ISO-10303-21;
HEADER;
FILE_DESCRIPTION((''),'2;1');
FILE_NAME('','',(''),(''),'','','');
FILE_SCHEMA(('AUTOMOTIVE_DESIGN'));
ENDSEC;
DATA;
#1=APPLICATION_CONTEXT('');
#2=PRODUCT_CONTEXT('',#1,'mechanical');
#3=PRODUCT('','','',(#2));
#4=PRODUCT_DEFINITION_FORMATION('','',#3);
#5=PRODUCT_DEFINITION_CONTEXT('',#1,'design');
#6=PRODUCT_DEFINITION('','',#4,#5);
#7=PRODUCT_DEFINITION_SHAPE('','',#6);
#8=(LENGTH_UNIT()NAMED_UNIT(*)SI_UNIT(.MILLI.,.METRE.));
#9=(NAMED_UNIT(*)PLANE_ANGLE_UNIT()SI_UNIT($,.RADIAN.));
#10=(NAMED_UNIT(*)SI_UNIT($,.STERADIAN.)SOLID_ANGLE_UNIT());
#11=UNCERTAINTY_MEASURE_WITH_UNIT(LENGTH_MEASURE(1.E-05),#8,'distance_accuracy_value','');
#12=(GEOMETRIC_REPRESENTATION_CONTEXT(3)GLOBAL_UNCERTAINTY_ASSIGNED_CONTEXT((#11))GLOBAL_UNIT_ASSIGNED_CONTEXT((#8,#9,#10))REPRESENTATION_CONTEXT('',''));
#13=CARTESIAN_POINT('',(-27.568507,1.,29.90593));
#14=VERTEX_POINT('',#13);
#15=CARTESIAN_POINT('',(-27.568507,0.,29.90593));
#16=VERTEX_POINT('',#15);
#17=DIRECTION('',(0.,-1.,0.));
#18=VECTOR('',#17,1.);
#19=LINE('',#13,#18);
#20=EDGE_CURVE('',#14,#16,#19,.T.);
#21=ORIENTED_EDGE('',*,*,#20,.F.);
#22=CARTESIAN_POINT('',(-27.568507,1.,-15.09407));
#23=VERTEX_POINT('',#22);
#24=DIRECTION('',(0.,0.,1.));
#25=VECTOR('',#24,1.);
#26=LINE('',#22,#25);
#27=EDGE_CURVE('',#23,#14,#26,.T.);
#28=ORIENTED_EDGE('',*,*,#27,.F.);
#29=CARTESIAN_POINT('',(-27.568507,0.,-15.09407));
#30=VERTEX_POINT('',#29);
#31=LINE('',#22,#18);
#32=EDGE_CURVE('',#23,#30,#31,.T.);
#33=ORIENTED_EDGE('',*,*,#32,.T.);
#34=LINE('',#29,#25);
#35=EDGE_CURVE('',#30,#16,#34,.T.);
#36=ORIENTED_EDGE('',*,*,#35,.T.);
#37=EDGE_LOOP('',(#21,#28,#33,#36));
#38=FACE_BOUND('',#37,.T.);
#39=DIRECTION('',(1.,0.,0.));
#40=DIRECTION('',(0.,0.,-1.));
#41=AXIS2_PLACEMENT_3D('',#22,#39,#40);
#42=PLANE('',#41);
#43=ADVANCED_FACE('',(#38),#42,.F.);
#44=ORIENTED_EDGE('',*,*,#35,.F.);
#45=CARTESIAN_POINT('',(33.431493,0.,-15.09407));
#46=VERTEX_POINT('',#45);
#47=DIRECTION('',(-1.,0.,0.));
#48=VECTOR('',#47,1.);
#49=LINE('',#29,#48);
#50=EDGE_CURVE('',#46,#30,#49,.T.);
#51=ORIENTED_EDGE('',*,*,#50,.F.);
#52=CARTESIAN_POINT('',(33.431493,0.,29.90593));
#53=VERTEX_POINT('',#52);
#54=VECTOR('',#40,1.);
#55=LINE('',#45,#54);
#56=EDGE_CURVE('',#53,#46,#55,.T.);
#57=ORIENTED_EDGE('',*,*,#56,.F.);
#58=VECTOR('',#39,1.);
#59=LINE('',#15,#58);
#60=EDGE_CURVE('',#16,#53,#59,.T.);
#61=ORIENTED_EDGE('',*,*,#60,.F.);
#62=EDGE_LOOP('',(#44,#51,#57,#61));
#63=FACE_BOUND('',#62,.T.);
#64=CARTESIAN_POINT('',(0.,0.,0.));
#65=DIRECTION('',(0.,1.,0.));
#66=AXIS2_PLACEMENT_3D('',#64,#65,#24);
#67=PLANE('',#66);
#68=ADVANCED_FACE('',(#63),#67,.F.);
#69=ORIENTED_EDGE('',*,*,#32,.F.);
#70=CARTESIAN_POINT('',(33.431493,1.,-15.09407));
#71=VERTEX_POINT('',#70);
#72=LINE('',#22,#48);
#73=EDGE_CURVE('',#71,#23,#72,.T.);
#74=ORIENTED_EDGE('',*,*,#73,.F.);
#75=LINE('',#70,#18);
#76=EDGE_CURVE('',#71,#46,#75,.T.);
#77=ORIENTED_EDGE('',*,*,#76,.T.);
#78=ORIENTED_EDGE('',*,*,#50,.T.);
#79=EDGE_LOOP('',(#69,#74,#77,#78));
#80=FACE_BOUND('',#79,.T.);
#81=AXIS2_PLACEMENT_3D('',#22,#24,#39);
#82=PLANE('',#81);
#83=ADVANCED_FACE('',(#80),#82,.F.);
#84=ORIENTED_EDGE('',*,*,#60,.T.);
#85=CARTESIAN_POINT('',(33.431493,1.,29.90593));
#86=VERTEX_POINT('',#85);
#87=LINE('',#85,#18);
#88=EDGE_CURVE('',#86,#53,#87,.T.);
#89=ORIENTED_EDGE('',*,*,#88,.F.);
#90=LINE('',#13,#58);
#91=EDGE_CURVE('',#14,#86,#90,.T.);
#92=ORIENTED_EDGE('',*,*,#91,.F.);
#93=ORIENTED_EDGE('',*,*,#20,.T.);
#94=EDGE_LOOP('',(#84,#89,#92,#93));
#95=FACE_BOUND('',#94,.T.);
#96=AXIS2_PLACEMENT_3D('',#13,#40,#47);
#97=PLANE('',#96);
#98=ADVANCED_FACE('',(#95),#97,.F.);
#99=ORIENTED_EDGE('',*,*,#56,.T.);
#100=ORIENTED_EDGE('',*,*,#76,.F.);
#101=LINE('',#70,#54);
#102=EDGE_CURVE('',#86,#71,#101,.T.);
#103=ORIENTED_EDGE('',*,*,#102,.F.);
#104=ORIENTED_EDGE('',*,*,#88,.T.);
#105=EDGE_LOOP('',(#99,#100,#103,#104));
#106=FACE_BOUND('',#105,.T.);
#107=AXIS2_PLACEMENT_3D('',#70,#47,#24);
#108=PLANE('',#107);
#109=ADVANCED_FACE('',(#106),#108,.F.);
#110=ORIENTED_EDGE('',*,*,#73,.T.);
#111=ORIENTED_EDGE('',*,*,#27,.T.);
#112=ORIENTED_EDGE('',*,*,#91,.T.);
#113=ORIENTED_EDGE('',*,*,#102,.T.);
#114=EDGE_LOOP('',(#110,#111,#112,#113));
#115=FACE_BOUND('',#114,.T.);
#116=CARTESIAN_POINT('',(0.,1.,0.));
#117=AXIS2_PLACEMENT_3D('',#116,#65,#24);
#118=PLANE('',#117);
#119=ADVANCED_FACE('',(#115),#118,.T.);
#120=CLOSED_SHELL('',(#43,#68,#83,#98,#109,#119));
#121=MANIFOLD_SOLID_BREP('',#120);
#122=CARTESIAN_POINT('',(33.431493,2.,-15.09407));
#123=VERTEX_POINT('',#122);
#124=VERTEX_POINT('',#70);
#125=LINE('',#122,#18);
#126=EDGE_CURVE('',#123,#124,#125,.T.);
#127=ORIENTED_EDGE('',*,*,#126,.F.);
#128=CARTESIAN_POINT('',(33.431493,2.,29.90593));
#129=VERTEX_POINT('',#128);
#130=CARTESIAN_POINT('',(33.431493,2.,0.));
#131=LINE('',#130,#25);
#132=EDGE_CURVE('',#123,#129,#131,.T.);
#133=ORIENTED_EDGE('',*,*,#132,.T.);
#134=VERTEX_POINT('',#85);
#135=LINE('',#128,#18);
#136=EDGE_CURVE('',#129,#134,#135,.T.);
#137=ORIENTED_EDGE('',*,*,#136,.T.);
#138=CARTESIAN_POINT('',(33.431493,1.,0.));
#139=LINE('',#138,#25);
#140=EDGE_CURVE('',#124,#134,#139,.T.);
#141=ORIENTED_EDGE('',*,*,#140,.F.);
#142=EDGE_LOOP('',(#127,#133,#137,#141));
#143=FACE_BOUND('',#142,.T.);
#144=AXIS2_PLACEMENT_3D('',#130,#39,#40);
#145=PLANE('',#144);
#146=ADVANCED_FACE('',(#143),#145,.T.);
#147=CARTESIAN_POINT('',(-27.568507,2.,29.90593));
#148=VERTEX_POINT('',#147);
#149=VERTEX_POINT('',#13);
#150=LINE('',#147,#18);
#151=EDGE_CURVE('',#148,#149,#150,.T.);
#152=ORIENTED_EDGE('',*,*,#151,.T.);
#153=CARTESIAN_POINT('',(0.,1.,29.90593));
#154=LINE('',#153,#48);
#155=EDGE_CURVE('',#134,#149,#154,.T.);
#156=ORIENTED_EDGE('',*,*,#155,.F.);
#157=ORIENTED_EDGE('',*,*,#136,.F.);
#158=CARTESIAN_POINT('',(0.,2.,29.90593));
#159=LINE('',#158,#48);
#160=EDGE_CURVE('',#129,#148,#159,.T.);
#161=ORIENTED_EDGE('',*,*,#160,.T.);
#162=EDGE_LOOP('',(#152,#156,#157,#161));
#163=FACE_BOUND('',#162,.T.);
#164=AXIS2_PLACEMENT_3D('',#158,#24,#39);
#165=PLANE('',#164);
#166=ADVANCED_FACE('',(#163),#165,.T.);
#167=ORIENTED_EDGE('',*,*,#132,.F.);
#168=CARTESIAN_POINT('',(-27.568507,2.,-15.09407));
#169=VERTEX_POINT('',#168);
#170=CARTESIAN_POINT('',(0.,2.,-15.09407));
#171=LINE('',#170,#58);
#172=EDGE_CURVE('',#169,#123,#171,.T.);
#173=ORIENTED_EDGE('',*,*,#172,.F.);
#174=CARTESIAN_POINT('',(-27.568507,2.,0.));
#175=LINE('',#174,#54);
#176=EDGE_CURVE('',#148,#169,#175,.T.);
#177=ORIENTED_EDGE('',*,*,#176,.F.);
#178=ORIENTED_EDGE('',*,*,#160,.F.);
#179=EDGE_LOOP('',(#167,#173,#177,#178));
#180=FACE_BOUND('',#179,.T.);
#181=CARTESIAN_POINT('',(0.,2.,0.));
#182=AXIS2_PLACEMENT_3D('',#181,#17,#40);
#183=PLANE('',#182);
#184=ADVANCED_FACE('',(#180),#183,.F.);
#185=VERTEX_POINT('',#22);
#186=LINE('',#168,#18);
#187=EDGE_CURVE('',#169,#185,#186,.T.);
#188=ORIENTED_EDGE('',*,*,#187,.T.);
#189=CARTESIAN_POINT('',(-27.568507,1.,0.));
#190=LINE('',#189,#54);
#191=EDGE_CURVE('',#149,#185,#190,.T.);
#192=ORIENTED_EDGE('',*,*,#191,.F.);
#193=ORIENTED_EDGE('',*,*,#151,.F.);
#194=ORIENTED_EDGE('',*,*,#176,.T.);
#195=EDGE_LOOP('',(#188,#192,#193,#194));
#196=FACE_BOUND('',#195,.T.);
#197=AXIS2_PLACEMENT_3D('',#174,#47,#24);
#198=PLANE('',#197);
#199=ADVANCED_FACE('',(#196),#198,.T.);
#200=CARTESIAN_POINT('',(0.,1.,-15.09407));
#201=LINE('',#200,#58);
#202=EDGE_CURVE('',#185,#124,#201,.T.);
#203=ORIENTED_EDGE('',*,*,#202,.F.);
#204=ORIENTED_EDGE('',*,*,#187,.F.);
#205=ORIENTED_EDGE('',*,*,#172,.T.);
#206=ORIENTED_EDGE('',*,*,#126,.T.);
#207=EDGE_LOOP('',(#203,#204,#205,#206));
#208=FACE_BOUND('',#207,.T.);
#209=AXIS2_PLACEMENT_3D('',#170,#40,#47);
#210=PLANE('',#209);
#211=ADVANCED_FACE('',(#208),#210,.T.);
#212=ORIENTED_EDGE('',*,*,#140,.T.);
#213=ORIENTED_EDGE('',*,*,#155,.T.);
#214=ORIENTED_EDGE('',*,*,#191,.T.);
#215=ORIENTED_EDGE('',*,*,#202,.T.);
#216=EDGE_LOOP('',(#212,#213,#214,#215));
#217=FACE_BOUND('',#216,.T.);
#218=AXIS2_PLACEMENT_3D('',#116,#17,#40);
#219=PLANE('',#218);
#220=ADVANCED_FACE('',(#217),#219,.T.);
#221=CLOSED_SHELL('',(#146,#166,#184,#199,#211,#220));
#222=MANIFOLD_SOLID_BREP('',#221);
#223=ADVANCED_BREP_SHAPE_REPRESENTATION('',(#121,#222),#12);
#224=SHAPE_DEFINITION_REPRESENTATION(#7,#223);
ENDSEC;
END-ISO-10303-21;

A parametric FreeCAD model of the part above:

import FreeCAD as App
import Part
import Sketcher
from FreeCAD import Vector


def add_polygon(sketch, points):
    """Adds a closed chain of lines whose ends are joined by coincident constraints."""
    first, n = sketch.GeometryCount, len(points)
    for a, b in zip(points, points[1:] + points[:1]):
        sketch.addGeometry(Part.LineSegment(App.Vector(*a, 0), App.Vector(*b, 0)), False)
    for i in range(n):
        sketch.addConstraint(Sketcher.Constraint("Coincident", first + i, 2, first + (i + 1) % n, 1))

doc = App.newDocument("Part")
params = doc.addObject("Spreadsheet::Sheet", "Params")
for row, (alias, value) in enumerate([
    ("sketch1_width", "61 mm"),
    ("sketch1_height", "45 mm"),
    ("pad1_length", "1 mm"),
    ("sketch2_width", "61 mm"),
    ("sketch2_height", "45 mm"),
    ("pad2_length", "1 mm"),
], start=1):
    params.set(f"A{row}", alias)
    params.set(f"B{row}", "=" + value)
    params.setAlias(f"B{row}", alias)

body = doc.addObject("PartDesign::Body", "Body")

# Sketch on XZ plane
sketch1 = body.newObject("Sketcher::SketchObject", "Sketch")
sketch1.AttachmentSupport = (doc.getObject("XZ_Plane"), [""])
sketch1.MapMode = "FlatFace"
add_polygon(sketch1, [(-28, -15), (-28, 30), (33, 30), (33, -15)])  # lines 0-3
sketch1.addConstraint(Sketcher.Constraint("Vertical", 0))
sketch1.addConstraint(Sketcher.Constraint("Horizontal", 1))
sketch1.addConstraint(Sketcher.Constraint("Vertical", 2))
sketch1.addConstraint(Sketcher.Constraint("Horizontal", 3))
sketch1.addConstraint(Sketcher.Constraint("DistanceX", 1, 1, 1, 2, 61.0))
sketch1.addConstraint(Sketcher.Constraint("DistanceY", 0, 1, 0, 2, 45.0))
sketch1.addConstraint(Sketcher.Constraint("DistanceY", -1, 1, 0, 2, 29.90593))
sketch1.addConstraint(Sketcher.Constraint("DistanceX", 0, 2, -1, 1, 27.568507))
sketch1.setExpression("Constraints[8]", "Params.sketch1_width")
sketch1.setExpression("Constraints[9]", "Params.sketch1_height")
pad1 = body.newObject("PartDesign::Pad", "Pad")
pad1.Profile = sketch1
pad1.setExpression("Length", "Params.pad1_length")
pad1.Reversed = True
body2 = doc.addObject("PartDesign::Body", "Body001")

# Sketch on XZ plane
sketch2 = body2.newObject("Sketcher::SketchObject", "Sketch001")
sketch2.AttachmentSupport = (doc.getObject("XZ_Plane001"), [""])
sketch2.MapMode = "FlatFace"
sketch2.AttachmentOffset = App.Placement(Vector(0, 0, -1), App.Rotation())
add_polygon(sketch2, [(-28, -15), (-28, 30), (33, 30), (33, -15)])  # lines 0-3
sketch2.addConstraint(Sketcher.Constraint("Vertical", 0))
sketch2.addConstraint(Sketcher.Constraint("Horizontal", 1))
sketch2.addConstraint(Sketcher.Constraint("Vertical", 2))
sketch2.addConstraint(Sketcher.Constraint("Horizontal", 3))
sketch2.addConstraint(Sketcher.Constraint("DistanceX", 1, 1, 1, 2, 61.0))
sketch2.addConstraint(Sketcher.Constraint("DistanceY", 0, 1, 0, 2, 45.0))
sketch2.addConstraint(Sketcher.Constraint("DistanceY", -1, 1, 0, 2, 29.90593))
sketch2.addConstraint(Sketcher.Constraint("DistanceX", 0, 2, -1, 1, 27.568507))
sketch2.setExpression("Constraints[8]", "Params.sketch2_width")
sketch2.setExpression("Constraints[9]", "Params.sketch2_height")
pad2 = body2.newObject("PartDesign::Pad", "Pad001")
pad2.Profile = sketch2
pad2.setExpression("Length", "Params.pad2_length")
pad2.Reversed = True

doc.recompute()
